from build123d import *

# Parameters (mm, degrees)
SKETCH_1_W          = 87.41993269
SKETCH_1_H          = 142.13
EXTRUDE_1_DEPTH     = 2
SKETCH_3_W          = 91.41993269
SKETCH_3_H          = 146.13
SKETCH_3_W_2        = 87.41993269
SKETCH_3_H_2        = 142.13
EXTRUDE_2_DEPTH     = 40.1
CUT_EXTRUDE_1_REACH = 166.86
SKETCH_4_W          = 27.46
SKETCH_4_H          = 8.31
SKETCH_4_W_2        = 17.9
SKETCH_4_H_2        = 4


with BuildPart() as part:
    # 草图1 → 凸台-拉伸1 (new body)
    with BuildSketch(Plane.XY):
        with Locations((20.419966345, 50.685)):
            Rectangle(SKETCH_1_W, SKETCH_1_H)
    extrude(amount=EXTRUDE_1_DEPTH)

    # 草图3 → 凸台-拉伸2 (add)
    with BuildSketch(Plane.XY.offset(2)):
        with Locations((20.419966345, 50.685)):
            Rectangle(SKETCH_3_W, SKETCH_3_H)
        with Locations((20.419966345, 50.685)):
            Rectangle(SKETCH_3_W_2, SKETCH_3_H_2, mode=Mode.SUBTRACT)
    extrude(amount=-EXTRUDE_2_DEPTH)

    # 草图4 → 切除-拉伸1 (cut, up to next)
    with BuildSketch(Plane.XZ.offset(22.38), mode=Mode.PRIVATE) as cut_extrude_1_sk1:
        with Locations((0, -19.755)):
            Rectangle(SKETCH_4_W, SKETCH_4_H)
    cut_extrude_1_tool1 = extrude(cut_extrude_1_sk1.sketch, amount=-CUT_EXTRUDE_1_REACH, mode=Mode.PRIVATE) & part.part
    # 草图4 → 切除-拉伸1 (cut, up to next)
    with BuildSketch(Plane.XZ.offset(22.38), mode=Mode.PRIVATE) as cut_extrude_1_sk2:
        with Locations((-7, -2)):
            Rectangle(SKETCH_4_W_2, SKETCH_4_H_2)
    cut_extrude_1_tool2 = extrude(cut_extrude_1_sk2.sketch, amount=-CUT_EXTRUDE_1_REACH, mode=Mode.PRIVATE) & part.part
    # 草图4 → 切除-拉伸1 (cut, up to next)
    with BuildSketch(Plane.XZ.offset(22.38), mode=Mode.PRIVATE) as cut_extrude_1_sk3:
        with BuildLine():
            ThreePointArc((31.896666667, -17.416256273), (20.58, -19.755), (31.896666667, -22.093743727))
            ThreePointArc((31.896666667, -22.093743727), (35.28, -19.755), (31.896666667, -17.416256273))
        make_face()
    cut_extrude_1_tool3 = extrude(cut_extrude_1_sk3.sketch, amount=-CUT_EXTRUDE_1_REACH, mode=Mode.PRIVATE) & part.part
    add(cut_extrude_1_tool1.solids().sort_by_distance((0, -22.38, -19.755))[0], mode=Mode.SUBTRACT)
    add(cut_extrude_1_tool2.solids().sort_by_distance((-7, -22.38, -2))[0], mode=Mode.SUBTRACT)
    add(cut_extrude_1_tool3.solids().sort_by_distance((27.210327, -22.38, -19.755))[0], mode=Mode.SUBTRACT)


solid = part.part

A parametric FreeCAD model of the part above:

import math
import FreeCAD as App
import Part
import Sketcher
Q = App.Units.Quantity


def add_polygon(sketch, points):
    """Adds a closed chain of lines whose ends are joined by coincident constraints."""
    first, n = sketch.GeometryCount, len(points)
    for a, b in zip(points, points[1:] + points[:1]):
        sketch.addGeometry(Part.LineSegment(App.Vector(*a, 0), App.Vector(*b, 0)), False)
    for i in range(n):
        sketch.addConstraint(Sketcher.Constraint("Coincident", first + i, 2, first + (i + 1) % n, 1))

doc = App.newDocument("Part")
params = doc.addObject("Spreadsheet::Sheet", "Params")
for row, (alias, value) in enumerate([
    ("sketch1_height", "142.13 mm"),
    ("pad1_length", "2 mm"),
    ("sketch2_height", "146.13 mm"),
    ("pad2_length", "40.1 mm"),
    ("sketch3_width", "27.46 mm"),
    ("sketch3_height", "8.31 mm"),
    ("sketch4_height", "4 mm"),
    ("sketch4_width", "17.9 mm"),
    ("sketch5_radius", "5.9 mm"),
    ("sketch5_radius2", "2.5 mm"),
], start=1):
    params.set(f"A{row}", alias)
    params.set(f"B{row}", "=" + value)
    params.setAlias(f"B{row}", alias)

body = doc.addObject("PartDesign::Body", "Body")

sketch1 = body.newObject("Sketcher::SketchObject", "Sketch")
sketch1.AttachmentSupport = (doc.getObject("XY_Plane"), [""])
sketch1.MapMode = "FlatFace"
add_polygon(sketch1, [(-23, 122), (-23, -20), (64, -20), (64, 122)])
sketch1.addConstraint([
    Sketcher.Constraint("Vertical", 0),
    Sketcher.Constraint("Horizontal", 1),
    Sketcher.Constraint("Vertical", 2),
    Sketcher.Constraint("Horizontal", 3),
    Sketcher.Constraint("DistanceY", 0, 2, 0, 1, Q("142.13 mm")),
    Sketcher.Constraint("DistanceX", 0, 2, -1, 1, Q("23.29 mm")),
    Sketcher.Constraint("DistanceY", 0, 2, -1, 1, Q("20.38 mm")),
    Sketcher.Constraint("DistanceX", 1, 1, 1, 2, Q("87.419933 mm")),
])
sketch1.setExpression("Constraints[8]", "Params.sketch1_height")
pad1 = body.newObject("PartDesign::Pad", "Pad")
pad1.Profile = sketch1
pad1.setExpression("Length", "Params.pad1_length")

sketch2 = body.newObject("Sketcher::SketchObject", "Sketch001")
sketch2.AttachmentSupport = (doc.getObject("XY_Plane"), [""])
sketch2.MapMode = "FlatFace"
sketch2.AttachmentOffset = App.Placement(App.Vector(0, 0, 2), App.Rotation())
add_polygon(sketch2, [(-25, 124), (-25, -22), (66, -22), (66, 124)])
add_polygon(sketch2, [(64, -20), (-23, -20), (-23, 122), (64, 122)])
sketch2.addConstraint([
    Sketcher.Constraint("Vertical", 0),
    Sketcher.Constraint("Horizontal", 1),
    Sketcher.Constraint("Vertical", 2),
    Sketcher.Constraint("Horizontal", 3),
    Sketcher.Constraint("Horizontal", 4),
    Sketcher.Constraint("Vertical", 5),
    Sketcher.Constraint("Horizontal", 6),
    Sketcher.Constraint("Vertical", 7),
    Sketcher.Constraint("DistanceX", 0, 2, 4, 2, Q("2 mm")),
    Sketcher.Constraint("DistanceY", 0, 2, 4, 2, Q("2 mm")),
    Sketcher.Constraint("DistanceY", 5, 2, 3, 2, Q("2 mm")),
    Sketcher.Constraint("DistanceX", 6, 2, 2, 2, Q("2 mm")),
    Sketcher.Constraint("DistanceY", 0, 2, 0, 1, Q("146.13 mm")),
    Sketcher.Constraint("DistanceX", 0, 2, -1, 1, Q("25.29 mm")),
    Sketcher.Constraint("DistanceY", 0, 2, -1, 1, Q("22.38 mm")),
    Sketcher.Constraint("DistanceX", 1, 1, 1, 2, Q("91.419933 mm")),
])
sketch2.setExpression("Constraints[20]", "Params.sketch2_height")
pad2 = body.newObject("PartDesign::Pad", "Pad001")
pad2.Profile = sketch2
pad2.setExpression("Length", "Params.pad2_length")
pad2.Reversed = True

sketch3 = body.newObject("Sketcher::SketchObject", "Sketch002")
sketch3.AttachmentSupport = (doc.getObject("XZ_Plane"), [""])
sketch3.MapMode = "FlatFace"
sketch3.AttachmentOffset = App.Placement(App.Vector(0, 0, 22.38), App.Rotation())
add_polygon(sketch3, [(-14, -16), (-14, -24), (14, -24), (14, -16)])
sketch3.addConstraint([
    Sketcher.Constraint("Vertical", 0),
    Sketcher.Constraint("Horizontal", 1),
    Sketcher.Constraint("Vertical", 2),
    Sketcher.Constraint("Horizontal", 3),
    Sketcher.Constraint("DistanceX", 1, 1, 1, 2, Q("27.46 mm")),
    Sketcher.Constraint("DistanceY", 0, 2, 0, 1, Q("8.31 mm")),
    Sketcher.Constraint("DistanceY", 2, 2, -1, 1, Q("15.6 mm")),
    Sketcher.Constraint("DistanceX", 0, 2, -1, 1, Q("13.73 mm")),
])
sketch3.setExpression("Constraints[8]", "Params.sketch3_width")
sketch3.setExpression("Constraints[9]", "Params.sketch3_height")
pocket1 = body.newObject("PartDesign::Pocket", "Pocket")
pocket1.Profile = sketch3
pocket1.Type = "UpToFirst"

sketch4 = body.newObject("Sketcher::SketchObject", "Sketch003")
sketch4.AttachmentSupport = (doc.getObject("XZ_Plane"), [""])
sketch4.MapMode = "FlatFace"
sketch4.AttachmentOffset = App.Placement(App.Vector(0, 0, 22.38), App.Rotation())
add_polygon(sketch4, [(-15.9, 0), (-15.9, -4), (1.9, -4), (1.9, 0)])
sketch4.addConstraint([
    Sketcher.Constraint("Vertical", 0),
    Sketcher.Constraint("Horizontal", 1),
    Sketcher.Constraint("Vertical", 2),
    Sketcher.Constraint("Horizontal", 3),
    Sketcher.Constraint("PointOnObject", 2, 2, -1),
    Sketcher.Constraint("DistanceY", 0, 2, 0, 1, Q("4 mm")),
    Sketcher.Constraint("DistanceX", 1, 1, 1, 2, Q("17.9 mm")),
    Sketcher.Constraint("DistanceX", 0, 2, -1, 1, Q("15.95 mm")),
])
sketch4.setExpression("Constraints[9]", "Params.sketch4_height")
sketch4.setExpression("Constraints[10]", "Params.sketch4_width")
pocket2 = body.newObject("PartDesign::Pocket", "Pocket001")
pocket2.Profile = sketch4
pocket2.Type = "UpToFirst"

sketch5 = body.newObject("Sketcher::SketchObject", "Sketch004")
sketch5.AttachmentSupport = (doc.getObject("XZ_Plane"), [""])
sketch5.MapMode = "FlatFace"
sketch5.AttachmentOffset = App.Placement(App.Vector(0, 0, 22.38), App.Rotation())
sketch5.addGeometry([
    Part.ArcOfCircle(Part.Circle(App.Vector(26.5, -19.8, 0), App.Vector(0, 0, 1), 5.9), math.radians(23), math.radians(337)),
    Part.ArcOfCircle(Part.Circle(App.Vector(32.8, -19.8, 0), App.Vector(0, 0, 1), 2.5), math.radians(-111), math.radians(111)),
], False)
sketch5.addConstraint([
    Sketcher.Constraint("Coincident", 0, 1, 1, 2),
    Sketcher.Constraint("Coincident", 1, 1, 0, 2),
    Sketcher.Constraint("Horizontal", 0, 3, 1, 3),
    Sketcher.Constraint("Radius", 0, Q("5.9 mm")),
    Sketcher.Constraint("Radius", 1, Q("2.5 mm")),
    Sketcher.Constraint("DistanceX", 0, 3, 1, 3, Q("6.3 mm")),
    Sketcher.Constraint("DistanceX", -1, 1, 0, 3, Q("26.48 mm")),
    Sketcher.Constraint("DistanceY", 0, 3, -1, 1, Q("19.755 mm")),
])
sketch5.setExpression("Constraints[3]", "Params.sketch5_radius")
sketch5.setExpression("Constraints[4]", "Params.sketch5_radius2")
pocket3 = body.newObject("PartDesign::Pocket", "Pocket002")
pocket3.Profile = sketch5
pocket3.Type = "UpToFirst"

doc.recompute()
